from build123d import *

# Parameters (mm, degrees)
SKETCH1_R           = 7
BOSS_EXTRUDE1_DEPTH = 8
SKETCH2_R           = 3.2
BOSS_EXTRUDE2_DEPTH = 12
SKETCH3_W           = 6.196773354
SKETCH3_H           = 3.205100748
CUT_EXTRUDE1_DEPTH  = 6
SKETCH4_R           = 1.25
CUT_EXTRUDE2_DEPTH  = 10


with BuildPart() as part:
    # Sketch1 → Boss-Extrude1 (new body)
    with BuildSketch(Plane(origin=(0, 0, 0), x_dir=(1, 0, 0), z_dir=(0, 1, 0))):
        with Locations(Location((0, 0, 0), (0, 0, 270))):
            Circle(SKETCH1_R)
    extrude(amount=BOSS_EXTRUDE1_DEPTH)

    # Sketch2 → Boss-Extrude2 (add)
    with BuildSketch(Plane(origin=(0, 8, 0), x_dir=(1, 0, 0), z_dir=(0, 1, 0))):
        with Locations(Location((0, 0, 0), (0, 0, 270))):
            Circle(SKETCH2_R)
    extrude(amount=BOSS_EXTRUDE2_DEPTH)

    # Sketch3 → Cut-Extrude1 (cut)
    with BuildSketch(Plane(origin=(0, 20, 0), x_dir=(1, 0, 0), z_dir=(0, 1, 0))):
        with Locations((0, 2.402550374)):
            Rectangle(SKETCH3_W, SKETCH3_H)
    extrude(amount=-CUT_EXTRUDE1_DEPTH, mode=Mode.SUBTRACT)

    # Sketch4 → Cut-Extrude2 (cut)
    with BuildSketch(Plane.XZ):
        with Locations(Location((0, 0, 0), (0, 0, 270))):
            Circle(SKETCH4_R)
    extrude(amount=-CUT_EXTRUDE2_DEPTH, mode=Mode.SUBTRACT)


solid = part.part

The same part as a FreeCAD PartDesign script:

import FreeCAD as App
import Part
import Sketcher

V = App.Vector
Q = App.Units.Quantity

doc = App.newDocument("Part")
body = doc.addObject("PartDesign::Body", "Body")

# Sketch on XZ plane
sketch1 = body.newObject("Sketcher::SketchObject", "Sketch")
sketch1.AttachmentSupport = (doc.getObject("XZ_Plane"), [""])
sketch1.MapMode = "FlatFace"
sketch1.addGeometry(Part.Circle(V(0, 0, 0), V(0, 0, 1), 7), False)
sketch1.addConstraint([
    Sketcher.Constraint("Coincident", 0, 3, -1, 1),
    Sketcher.Constraint("Diameter", 0, Q("14 mm")),
])
pad1 = body.newObject("PartDesign::Pad", "Pad")
pad1.Profile = sketch1
pad1.Length = 8
pad1.Reversed = True

# Sketch on XZ plane
sketch2 = body.newObject("Sketcher::SketchObject", "Sketch001")
sketch2.AttachmentSupport = (doc.getObject("XZ_Plane"), [""])
sketch2.MapMode = "FlatFace"
sketch2.AttachmentOffset = App.Placement(V(0, 0, -8), App.Rotation())
sketch2.addGeometry(Part.Circle(V(0, 0, 0), V(0, 0, 1), 3.2), False)
sketch2.addConstraint([
    Sketcher.Constraint("Coincident", 0, 3, -1, 1),
    Sketcher.Constraint("Diameter", 0, Q("6.4 mm")),
])
pad2 = body.newObject("PartDesign::Pad", "Pad001")
pad2.Profile = sketch2
pad2.Length = 12
pad2.Reversed = True

# Sketch on XZ plane
sketch3 = body.newObject("Sketcher::SketchObject", "Sketch002")
sketch3.AttachmentSupport = (doc.getObject("XZ_Plane"), [""])
sketch3.MapMode = "FlatFace"
sketch3.AttachmentOffset = App.Placement(V(0, 0, -20), App.Rotation())
sketch3.addGeometry([
    Part.LineSegment(V(-3.1, -4, 0), V(-3.1, -0.8, 0)),
    Part.LineSegment(V(-3.1, -0.8, 0), V(3.1, -0.8, 0)),
    Part.LineSegment(V(3.1, -0.8, 0), V(3.1, -4, 0)),
    Part.LineSegment(V(3.1, -4, 0), V(-3.1, -4, 0)),
], False)
sketch3.addConstraint([
    Sketcher.Constraint("Coincident", 0, 2, 1, 1),
    Sketcher.Constraint("Coincident", 1, 2, 2, 1),
    Sketcher.Constraint("Coincident", 2, 2, 3, 1),
    Sketcher.Constraint("Coincident", 3, 2, 0, 1),
    Sketcher.Constraint("Vertical", 0),
    Sketcher.Constraint("Horizontal", 1),
    Sketcher.Constraint("Vertical", 2),
    Sketcher.Constraint("Horizontal", 3),
    Sketcher.Constraint("DistanceY", 0, 2, -1, 1, Q("0.8 mm")),
    Sketcher.Constraint("DistanceY", 0, 1, 0, 2, Q("3.205101 mm")),
    Sketcher.Constraint("DistanceX", 1, 1, 1, 2, Q("6.196773 mm")),
    Sketcher.Constraint("DistanceX", 0, 2, -1, 1, Q("3.098387 mm")),
])
pocket1 = body.newObject("PartDesign::Pocket", "Pocket")
pocket1.Profile = sketch3
pocket1.Length = 6
pocket1.Reversed = True

# Sketch on XZ plane
sketch4 = body.newObject("Sketcher::SketchObject", "Sketch003")
sketch4.AttachmentSupport = (doc.getObject("XZ_Plane"), [""])
sketch4.MapMode = "FlatFace"
sketch4.addGeometry(Part.Circle(V(0, 0, 0), V(0, 0, 1), 1.2), False)
sketch4.addConstraint([
    Sketcher.Constraint("Coincident", 0, 3, -1, 1),
    Sketcher.Constraint("Diameter", 0, Q("2.5 mm")),
])
pocket2 = body.newObject("PartDesign::Pocket", "Pocket001")
pocket2.Profile = sketch4
pocket2.Length = 10

doc.recompute()
